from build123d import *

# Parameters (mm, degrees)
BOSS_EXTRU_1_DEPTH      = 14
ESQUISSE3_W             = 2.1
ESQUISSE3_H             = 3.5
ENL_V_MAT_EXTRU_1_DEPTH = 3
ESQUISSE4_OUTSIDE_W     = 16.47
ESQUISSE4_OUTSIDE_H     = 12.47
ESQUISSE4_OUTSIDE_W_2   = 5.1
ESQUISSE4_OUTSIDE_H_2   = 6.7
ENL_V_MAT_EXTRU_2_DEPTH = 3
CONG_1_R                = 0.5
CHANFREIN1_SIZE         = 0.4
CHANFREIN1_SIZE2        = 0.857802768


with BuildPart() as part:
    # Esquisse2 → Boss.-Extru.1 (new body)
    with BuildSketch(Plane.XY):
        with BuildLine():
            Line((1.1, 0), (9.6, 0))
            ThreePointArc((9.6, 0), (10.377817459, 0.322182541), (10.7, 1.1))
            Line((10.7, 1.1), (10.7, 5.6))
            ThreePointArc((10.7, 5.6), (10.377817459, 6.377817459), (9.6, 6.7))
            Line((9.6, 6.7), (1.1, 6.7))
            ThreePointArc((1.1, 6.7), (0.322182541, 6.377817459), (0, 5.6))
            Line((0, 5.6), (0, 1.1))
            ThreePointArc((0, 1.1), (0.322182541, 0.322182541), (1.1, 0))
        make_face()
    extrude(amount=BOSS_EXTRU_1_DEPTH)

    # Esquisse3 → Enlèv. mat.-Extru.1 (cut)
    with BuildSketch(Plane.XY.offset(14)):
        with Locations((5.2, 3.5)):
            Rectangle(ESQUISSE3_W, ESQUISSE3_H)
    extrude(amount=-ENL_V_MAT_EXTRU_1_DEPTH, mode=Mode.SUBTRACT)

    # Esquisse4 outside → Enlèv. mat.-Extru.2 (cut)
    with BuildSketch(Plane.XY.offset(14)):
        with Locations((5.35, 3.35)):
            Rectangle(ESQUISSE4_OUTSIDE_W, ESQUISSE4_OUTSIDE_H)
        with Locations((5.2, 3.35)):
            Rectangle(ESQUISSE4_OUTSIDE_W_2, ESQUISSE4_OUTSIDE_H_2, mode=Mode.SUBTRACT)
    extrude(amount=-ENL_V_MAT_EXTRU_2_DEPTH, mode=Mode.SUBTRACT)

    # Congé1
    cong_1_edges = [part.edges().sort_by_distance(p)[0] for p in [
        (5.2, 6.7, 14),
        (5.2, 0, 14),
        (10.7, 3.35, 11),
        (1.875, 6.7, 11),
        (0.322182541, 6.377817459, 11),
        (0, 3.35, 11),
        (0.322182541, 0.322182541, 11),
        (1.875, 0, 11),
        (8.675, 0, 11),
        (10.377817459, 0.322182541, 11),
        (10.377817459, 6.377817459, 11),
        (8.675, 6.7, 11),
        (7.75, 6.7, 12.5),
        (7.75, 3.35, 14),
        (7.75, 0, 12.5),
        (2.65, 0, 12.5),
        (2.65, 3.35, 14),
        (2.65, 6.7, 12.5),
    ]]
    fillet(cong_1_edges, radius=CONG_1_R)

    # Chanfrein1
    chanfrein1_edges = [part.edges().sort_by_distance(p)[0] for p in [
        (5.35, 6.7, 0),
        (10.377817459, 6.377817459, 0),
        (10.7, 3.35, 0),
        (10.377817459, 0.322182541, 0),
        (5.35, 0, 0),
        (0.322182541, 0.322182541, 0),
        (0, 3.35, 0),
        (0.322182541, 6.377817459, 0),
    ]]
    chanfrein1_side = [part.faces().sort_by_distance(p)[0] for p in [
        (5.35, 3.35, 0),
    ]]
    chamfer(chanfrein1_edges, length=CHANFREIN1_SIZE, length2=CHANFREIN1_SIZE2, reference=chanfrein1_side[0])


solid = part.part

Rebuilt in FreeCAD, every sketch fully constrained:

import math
import FreeCAD as App
import Part
import Sketcher
from FreeCAD import Vector
Q = App.Units.Quantity


def edges_at(feature, points):
    """Names of the edges that pass closest to the given points."""
    edges = feature.Shape.Edges
    near = lambda p: min(range(len(edges)), key=lambda i: edges[i].distToShape(Part.Vertex(*p))[0])
    return sorted({f"Edge{near(p) + 1}" for p in points})


def add_polygon(sketch, points):
    """Adds a closed chain of lines whose ends are joined by coincident constraints."""
    first, n = sketch.GeometryCount, len(points)
    for a, b in zip(points, points[1:] + points[:1]):
        sketch.addGeometry(Part.LineSegment(App.Vector(*a, 0), App.Vector(*b, 0)), False)
    for i in range(n):
        sketch.addConstraint(Sketcher.Constraint("Coincident", first + i, 2, first + (i + 1) % n, 1))

doc = App.newDocument("Part")
params = doc.addObject("Spreadsheet::Sheet", "Params")
for row, (alias, value) in enumerate([
    ("sketch1_radius", "1.1 mm"),
    ("sketch1_width", "8.5 mm"),
    ("sketch1_height", "4.5 mm"),
    ("pad1_length", "14 mm"),
    ("sketch2_width", "2.1 mm"),
    ("sketch2_height", "3.5 mm"),
    ("pocket1_length", "3 mm"),
    ("sketch3_width", "5.1 mm"),
    ("sketch3_height", "6.7 mm"),
    ("sketch3_width2", "16.47 mm"),
    ("sketch3_height2", "12.47 mm"),
    ("pocket2_length", "3 mm"),
    ("fillet_radius", "0.5 mm"),
    ("chamfer_size", "0.4 mm"),
    ("chamfer_size2", "0.857803 mm"),
], start=1):
    params.set(f"A{row}", alias)
    params.set(f"B{row}", "=" + value)
    params.setAlias(f"B{row}", alias)

body = doc.addObject("PartDesign::Body", "Body")

# Sketch on XY plane
sketch1 = body.newObject("Sketcher::SketchObject", "Sketch")
sketch1.AttachmentSupport = (doc.getObject("XY_Plane"), [""])
sketch1.MapMode = "FlatFace"
sketch1.addGeometry([
    Part.LineSegment(Vector(1.1, 0, 0), Vector(9.6, 0, 0)),  # 0
    Part.ArcOfCircle(Part.Circle(Vector(9.6, 1.1, 0), Vector(0, 0, 1), 1.1), math.radians(-90), math.radians(0)),  # 1
    Part.LineSegment(Vector(10.7, 1.1, 0), Vector(10.7, 5.6, 0)),  # 2
    Part.ArcOfCircle(Part.Circle(Vector(9.6, 5.6, 0), Vector(0, 0, 1), 1.1), math.radians(0), math.radians(90)),  # 3
    Part.LineSegment(Vector(9.6, 6.7, 0), Vector(1.1, 6.7, 0)),  # 4
    Part.ArcOfCircle(Part.Circle(Vector(1.1, 5.6, 0), Vector(0, 0, 1), 1.1), math.radians(90), math.radians(180)),  # 5
    Part.LineSegment(Vector(0, 5.6, 0), Vector(0, 1.1, 0)),  # 6
    Part.ArcOfCircle(Part.Circle(Vector(1.1, 1.1, 0), Vector(0, 0, 1), 1.1), math.radians(-180), math.radians(-90)),  # 7
], False)
sketch1.addConstraint([
    Sketcher.Constraint("Tangent", 0, 2, 1, 1),
    Sketcher.Constraint("Tangent", 1, 2, 2, 1),
    Sketcher.Constraint("Tangent", 2, 2, 3, 1),
    Sketcher.Constraint("Tangent", 3, 2, 4, 1),
    Sketcher.Constraint("Tangent", 4, 2, 5, 1),
    Sketcher.Constraint("Tangent", 5, 2, 6, 1),
    Sketcher.Constraint("Tangent", 6, 2, 7, 1),
    Sketcher.Constraint("Tangent", 7, 2, 0, 1),
    Sketcher.Constraint("Horizontal", 0),
    Sketcher.Constraint("Vertical", 2),
    Sketcher.Constraint("Horizontal", 4),
    Sketcher.Constraint("Vertical", 6),
    Sketcher.Constraint("Equal", 1, 3),
    Sketcher.Constraint("Equal", 3, 5),
    Sketcher.Constraint("Equal", 5, 7),
    Sketcher.Constraint("PointOnObject", 0, 2, -1),
    Sketcher.Constraint("PointOnObject", 5, 2, -2),
    Sketcher.Constraint("Radius", 1, Q("1.1 mm")),
    Sketcher.Constraint("DistanceX", 0, 1, 0, 2, Q("8.5 mm")),
    Sketcher.Constraint("DistanceY", 2, 1, 2, 2, Q("4.5 mm")),
])
sketch1.setExpression("Constraints[17]", "Params.sketch1_radius")
sketch1.setExpression("Constraints[18]", "Params.sketch1_width")
sketch1.setExpression("Constraints[19]", "Params.sketch1_height")
pad1 = body.newObject("PartDesign::Pad", "Pad")
pad1.Profile = sketch1
pad1.setExpression("Length", "Params.pad1_length")

# Sketch on XY plane
sketch2 = body.newObject("Sketcher::SketchObject", "Sketch001")
sketch2.AttachmentSupport = (doc.getObject("XY_Plane"), [""])
sketch2.MapMode = "FlatFace"
sketch2.AttachmentOffset = App.Placement(Vector(0, 0, 14), App.Rotation())
add_polygon(sketch2, [(4.15, 5.25), (4.15, 1.75), (6.25, 1.75), (6.25, 5.25)])  # lines 0-3
sketch2.addConstraint([
    Sketcher.Constraint("Vertical", 0),
    Sketcher.Constraint("Horizontal", 1),
    Sketcher.Constraint("Vertical", 2),
    Sketcher.Constraint("Horizontal", 3),
    Sketcher.Constraint("DistanceX", 1, 1, 1, 2, Q("2.1 mm")),
    Sketcher.Constraint("DistanceY", 0, 2, 0, 1, Q("3.5 mm")),
    Sketcher.Constraint("DistanceX", -1, 1, 0, 2, Q("4.15 mm")),
    Sketcher.Constraint("DistanceY", -1, 1, 0, 2, Q("1.75 mm")),
])
sketch2.setExpression("Constraints[8]", "Params.sketch2_width")
sketch2.setExpression("Constraints[9]", "Params.sketch2_height")
pocket1 = body.newObject("PartDesign::Pocket", "Pocket")
pocket1.Profile = sketch2
pocket1.setExpression("Length", "Params.pocket1_length")

# Sketch on XY plane
sketch3 = body.newObject("Sketcher::SketchObject", "Sketch002")
sketch3.AttachmentSupport = (doc.getObject("XY_Plane"), [""])
sketch3.MapMode = "FlatFace"
sketch3.AttachmentOffset = App.Placement(Vector(0, 0, 14), App.Rotation())
add_polygon(sketch3, [(-2.885, 9.585), (-2.885, -2.885), (13.585, -2.885), (13.585, 9.585)])  # lines 0-3
add_polygon(sketch3, [(7.75, 0), (2.65, 0), (2.65, 6.7), (7.75, 6.7)])  # lines 4-7
sketch3.addConstraint([
    Sketcher.Constraint("Vertical", 0),
    Sketcher.Constraint("Horizontal", 1),
    Sketcher.Constraint("Vertical", 2),
    Sketcher.Constraint("Horizontal", 3),
    Sketcher.Constraint("Horizontal", 4),
    Sketcher.Constraint("Vertical", 5),
    Sketcher.Constraint("Horizontal", 6),
    Sketcher.Constraint("Vertical", 7),
    Sketcher.Constraint("PointOnObject", 4, 2, -1),
    Sketcher.Constraint("DistanceX", 4, 2, 4, 1, Q("5.1 mm")),
    Sketcher.Constraint("DistanceY", 5, 1, 5, 2, Q("6.7 mm")),
    Sketcher.Constraint("DistanceX", 1, 1, 1, 2, Q("16.47 mm")),
    Sketcher.Constraint("DistanceY", 0, 2, 0, 1, Q("12.47 mm")),
    Sketcher.Constraint("DistanceX", -1, 1, 4, 2, Q("2.65 mm")),
    Sketcher.Constraint("DistanceX", 0, 2, -1, 1, Q("2.885 mm")),
    Sketcher.Constraint("DistanceY", 0, 2, -1, 1, Q("2.885 mm")),
])
sketch3.setExpression("Constraints[17]", "Params.sketch3_width")
sketch3.setExpression("Constraints[18]", "Params.sketch3_height")
sketch3.setExpression("Constraints[19]", "Params.sketch3_width2")
sketch3.setExpression("Constraints[20]", "Params.sketch3_height2")
pocket2 = body.newObject("PartDesign::Pocket", "Pocket001")
pocket2.Profile = sketch3
pocket2.setExpression("Length", "Params.pocket2_length")
doc.recompute()

fillet = body.newObject("PartDesign::Fillet", "Fillet")
fillet.Base = (pocket2, edges_at(pocket2, [
    (5.2, 6.7, 14),
    (5.2, 0, 14),
    (10.7, 3.35, 11),
    (1.875, 6.7, 11),
    (0.322, 6.378, 11),
    (0, 3.35, 11),
    (0.322, 0.322, 11),
    (1.875, 0, 11),
    (8.675, 0, 11),
    (10.378, 0.322, 11),
    (10.378, 6.378, 11),
    (8.675, 6.7, 11),
    (7.75, 6.7, 12.5),
    (7.75, 3.35, 14),
    (7.75, 0, 12.5),
    (2.65, 0, 12.5),
    (2.65, 3.35, 14),
    (2.65, 6.7, 12.5),
]))
fillet.setExpression("Radius", "Params.fillet_radius")
doc.recompute()

chamfer = body.newObject("PartDesign::Chamfer", "Chamfer")
chamfer.Base = (fillet, edges_at(fillet, [
    (5.35, 6.7, 0),
    (10.378, 6.378, 0),
    (10.7, 3.35, 0),
    (10.378, 0.322, 0),
    (5.35, 0, 0),
    (0.322, 0.322, 0),
    (0, 3.35, 0),
    (0.322, 6.378, 0),
]))
chamfer.ChamferType = "Two distances"
chamfer.setExpression("Size", "Params.chamfer_size")
chamfer.setExpression("Size2", "Params.chamfer_size2")

doc.recompute()
